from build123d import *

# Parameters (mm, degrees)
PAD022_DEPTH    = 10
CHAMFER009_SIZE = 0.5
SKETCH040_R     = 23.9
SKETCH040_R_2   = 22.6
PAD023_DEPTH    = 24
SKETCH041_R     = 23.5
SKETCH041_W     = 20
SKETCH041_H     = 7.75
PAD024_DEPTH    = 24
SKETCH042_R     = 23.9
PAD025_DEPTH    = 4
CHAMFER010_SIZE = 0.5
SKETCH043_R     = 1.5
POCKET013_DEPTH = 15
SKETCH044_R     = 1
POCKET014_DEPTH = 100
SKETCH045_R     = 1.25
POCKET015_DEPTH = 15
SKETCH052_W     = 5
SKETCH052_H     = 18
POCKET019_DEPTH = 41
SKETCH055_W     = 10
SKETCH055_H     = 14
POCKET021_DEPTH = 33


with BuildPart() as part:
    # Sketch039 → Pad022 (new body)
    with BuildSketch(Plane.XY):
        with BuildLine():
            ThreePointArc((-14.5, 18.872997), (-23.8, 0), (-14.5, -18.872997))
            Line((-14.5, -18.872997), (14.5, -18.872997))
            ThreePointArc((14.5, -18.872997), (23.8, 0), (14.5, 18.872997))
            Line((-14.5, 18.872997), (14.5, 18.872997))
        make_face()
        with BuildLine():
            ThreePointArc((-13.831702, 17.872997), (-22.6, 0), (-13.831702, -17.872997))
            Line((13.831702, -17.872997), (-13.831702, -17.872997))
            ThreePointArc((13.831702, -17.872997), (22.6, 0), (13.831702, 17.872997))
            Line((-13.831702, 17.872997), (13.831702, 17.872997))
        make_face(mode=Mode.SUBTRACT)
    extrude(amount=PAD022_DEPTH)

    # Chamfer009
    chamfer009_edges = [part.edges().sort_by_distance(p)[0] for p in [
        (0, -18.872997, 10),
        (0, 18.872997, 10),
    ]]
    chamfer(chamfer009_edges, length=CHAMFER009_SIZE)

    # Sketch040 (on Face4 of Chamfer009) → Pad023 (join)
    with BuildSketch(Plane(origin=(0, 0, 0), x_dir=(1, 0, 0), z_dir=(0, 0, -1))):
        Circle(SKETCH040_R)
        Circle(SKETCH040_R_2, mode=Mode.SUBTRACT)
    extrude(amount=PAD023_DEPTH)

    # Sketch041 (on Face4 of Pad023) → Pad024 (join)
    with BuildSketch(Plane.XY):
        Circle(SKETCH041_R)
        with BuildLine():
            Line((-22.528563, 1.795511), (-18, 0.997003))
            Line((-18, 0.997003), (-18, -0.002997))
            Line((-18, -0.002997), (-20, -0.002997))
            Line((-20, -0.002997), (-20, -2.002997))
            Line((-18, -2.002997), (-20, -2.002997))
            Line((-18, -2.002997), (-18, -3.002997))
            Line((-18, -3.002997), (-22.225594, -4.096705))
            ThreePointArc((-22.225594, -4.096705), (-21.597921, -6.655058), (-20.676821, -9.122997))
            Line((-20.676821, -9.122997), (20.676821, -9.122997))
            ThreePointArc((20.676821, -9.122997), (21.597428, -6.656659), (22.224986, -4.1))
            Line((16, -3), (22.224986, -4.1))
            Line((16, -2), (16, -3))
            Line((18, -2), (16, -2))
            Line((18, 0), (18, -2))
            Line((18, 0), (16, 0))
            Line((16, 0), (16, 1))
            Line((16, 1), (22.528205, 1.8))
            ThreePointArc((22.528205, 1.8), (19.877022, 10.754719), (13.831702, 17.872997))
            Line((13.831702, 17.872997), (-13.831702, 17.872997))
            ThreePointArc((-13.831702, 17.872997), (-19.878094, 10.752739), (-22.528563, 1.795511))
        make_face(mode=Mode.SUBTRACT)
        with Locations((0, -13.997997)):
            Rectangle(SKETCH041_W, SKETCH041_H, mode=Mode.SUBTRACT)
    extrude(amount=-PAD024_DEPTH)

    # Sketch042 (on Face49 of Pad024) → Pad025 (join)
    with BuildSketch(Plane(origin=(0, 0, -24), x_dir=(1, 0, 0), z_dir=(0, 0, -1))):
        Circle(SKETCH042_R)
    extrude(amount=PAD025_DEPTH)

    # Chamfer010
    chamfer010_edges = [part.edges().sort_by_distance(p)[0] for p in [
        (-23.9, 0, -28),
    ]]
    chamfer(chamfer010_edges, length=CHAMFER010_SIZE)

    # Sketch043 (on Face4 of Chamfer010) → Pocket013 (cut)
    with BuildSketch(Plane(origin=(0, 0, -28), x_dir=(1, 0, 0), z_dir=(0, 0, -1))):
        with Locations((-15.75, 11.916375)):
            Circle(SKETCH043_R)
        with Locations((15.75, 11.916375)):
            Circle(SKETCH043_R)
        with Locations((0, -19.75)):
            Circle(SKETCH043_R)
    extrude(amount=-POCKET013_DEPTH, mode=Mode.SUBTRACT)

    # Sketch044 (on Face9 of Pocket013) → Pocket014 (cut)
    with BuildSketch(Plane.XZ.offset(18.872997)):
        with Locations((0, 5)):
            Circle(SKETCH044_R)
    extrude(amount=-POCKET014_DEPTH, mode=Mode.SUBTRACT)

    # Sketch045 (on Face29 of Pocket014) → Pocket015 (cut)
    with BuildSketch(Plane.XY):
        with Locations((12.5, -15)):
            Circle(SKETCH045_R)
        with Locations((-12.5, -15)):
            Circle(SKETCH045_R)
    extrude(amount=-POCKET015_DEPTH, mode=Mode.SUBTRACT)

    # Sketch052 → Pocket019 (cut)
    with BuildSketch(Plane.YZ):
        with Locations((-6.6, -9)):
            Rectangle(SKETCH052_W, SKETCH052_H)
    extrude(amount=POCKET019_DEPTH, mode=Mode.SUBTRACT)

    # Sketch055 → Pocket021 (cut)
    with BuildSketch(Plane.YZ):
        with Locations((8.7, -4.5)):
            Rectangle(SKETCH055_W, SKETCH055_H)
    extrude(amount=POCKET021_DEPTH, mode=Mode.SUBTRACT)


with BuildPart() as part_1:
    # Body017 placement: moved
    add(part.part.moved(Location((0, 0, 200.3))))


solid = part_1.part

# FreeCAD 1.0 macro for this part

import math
import FreeCAD as App
import Part
import Sketcher

V = App.Vector
Q = App.Units.Quantity


def edges_at(feature, points):
    """Names of the edges that pass closest to the given points."""
    edges = feature.Shape.Edges
    near = lambda p: min(range(len(edges)), key=lambda i: edges[i].distToShape(Part.Vertex(*p))[0])
    return sorted({f"Edge{near(p) + 1}" for p in points})

doc = App.newDocument("Part")
params = doc.addObject("Spreadsheet::Sheet", "Params")
for row, (alias, value) in enumerate([
    ("sketch1_radius", "23.800001 mm"),
    ("sketch1_radius2", "22.6 mm"),
    ("sketch1_width", "29 mm"),
    ("pad1_length", "10 mm"),
    ("chamfer_size", "0.5 mm"),
    ("sketch2_diameter", "47.8 mm"),
    ("sketch2_diameter2", "45.2 mm"),
    ("pad2_length", "24 mm"),
    ("sketch3_diameter", "47 mm"),
    ("sketch3_width", "20 mm"),
    ("sketch3_width2", "2 mm"),
    ("sketch3_width3", "2 mm"),
    ("sketch3_width4", "2 mm"),
    ("pad3_length", "24 mm"),
    ("sketch4_diameter", "47.8 mm"),
    ("pad4_length", "4 mm"),
    ("chamfer2_size", "0.5 mm"),
    ("sketch5_diameter", "3 mm"),
    ("pocket1_length", "15 mm"),
    ("sketch6_diameter", "2 mm"),
    ("pocket2_length", "100 mm"),
    ("sketch7_diameter", "2.5 mm"),
    ("pocket3_length", "15 mm"),
    ("sketch8_width", "5 mm"),
    ("sketch8_height", "18 mm"),
    ("pocket4_length", "41 mm"),
    ("sketch9_width", "10 mm"),
    ("sketch9_height", "14 mm"),
    ("pocket5_length", "33 mm"),
], start=1):
    params.set(f"A{row}", alias)
    params.set(f"B{row}", "=" + value)
    params.setAlias(f"B{row}", alias)

body = doc.addObject("PartDesign::Body", "Body")

# Sketch on XY plane
sketch1 = body.newObject("Sketcher::SketchObject", "Sketch")
sketch1.AttachmentSupport = (doc.getObject("XY_Plane"), [""])
sketch1.MapMode = "FlatFace"
sketch1.addGeometry([
    Part.ArcOfCircle(Part.Circle(V(0, 0, 0), V(0, 0, 1), 24), math.radians(128), math.radians(232)),  # 0
    Part.LineSegment(V(-14, -19, 0), V(14, -19, 0)),  # 1
    Part.ArcOfCircle(Part.Circle(V(0, 0, 0), V(0, 0, 1), 24), math.radians(-52), math.radians(52)),  # 2
    Part.LineSegment(V(14, 19, 0), V(-14, 19, 0)),  # 3
    Part.ArcOfCircle(Part.Circle(V(0, 0, 0), V(0, 0, 1), 23), math.radians(128), math.radians(232)),  # 4
    Part.LineSegment(V(-14, 18, 0), V(14, 18, 0)),  # 5
    Part.ArcOfCircle(Part.Circle(V(0, 0, 0), V(0, 0, 1), 23), math.radians(-52), math.radians(52)),  # 6
    Part.LineSegment(V(14, -18, 0), V(-14, -18, 0)),  # 7
], False)
sketch1.addConstraint([
    Sketcher.Constraint("Coincident", 0, 2, 1, 1),
    Sketcher.Constraint("Coincident", 1, 2, 2, 1),
    Sketcher.Constraint("Coincident", 2, 2, 3, 1),
    Sketcher.Constraint("Coincident", 3, 2, 0, 1),
    Sketcher.Constraint("Coincident", 4, 1, 5, 1),
    Sketcher.Constraint("Coincident", 5, 2, 6, 2),
    Sketcher.Constraint("Coincident", 6, 1, 7, 1),
    Sketcher.Constraint("Coincident", 7, 2, 4, 2),
    Sketcher.Constraint("Horizontal", 1),
    Sketcher.Constraint("Horizontal", 3),
    Sketcher.Constraint("Horizontal", 5),
    Sketcher.Constraint("Horizontal", 7),
    Sketcher.Constraint("Coincident", 0, 3, -1, 1),
    Sketcher.Constraint("Coincident", 2, 3, -1, 1),
    Sketcher.Constraint("Coincident", 4, 3, -1, 1),
    Sketcher.Constraint("Coincident", 6, 3, -1, 1),
    Sketcher.Constraint("Equal", 0, 2),
    Sketcher.Constraint("Equal", 4, 6),
    Sketcher.Constraint("Vertical", 1, 2, 2, 2),
    Sketcher.Constraint("Vertical", 5, 2, 6, 1),
    Sketcher.Constraint("Radius", 0, Q("23.800001 mm")),
    Sketcher.Constraint("Radius", 4, Q("22.6 mm")),
    Sketcher.Constraint("DistanceX", 1, 1, 1, 2, Q("29 mm")),
    Sketcher.Constraint("DistanceY", 4, 1, 3, 2, Q("1 mm")),
])
sketch1.setExpression("Constraints[20]", "Params.sketch1_radius")
sketch1.setExpression("Constraints[21]", "Params.sketch1_radius2")
sketch1.setExpression("Constraints[22]", "Params.sketch1_width")
pad1 = body.newObject("PartDesign::Pad", "Pad")
pad1.Profile = sketch1
pad1.setExpression("Length", "Params.pad1_length")
doc.recompute()

chamfer = body.newObject("PartDesign::Chamfer", "Chamfer")
chamfer.Base = (pad1, edges_at(pad1, [(0, -18.873, 10), (0, 18.873, 10)]))
chamfer.setExpression("Size", "Params.chamfer_size")

# Sketch on XY plane
sketch2 = body.newObject("Sketcher::SketchObject", "Sketch001")
sketch2.AttachmentSupport = (doc.getObject("XY_Plane"), [""])
sketch2.MapMode = "FlatFace"
sketch2.addGeometry([
    Part.Circle(V(0, 0, 0), V(0, 0, 1), 24),
    Part.Circle(V(0, 0, 0), V(0, 0, 1), 23),
], False)
sketch2.addConstraint([
    Sketcher.Constraint("Coincident", 0, 3, -1, 1),
    Sketcher.Constraint("Coincident", 1, 3, -1, 1),
    Sketcher.Constraint("Diameter", 0, Q("47.8 mm")),
    Sketcher.Constraint("Diameter", 1, Q("45.2 mm")),
])
sketch2.setExpression("Constraints[2]", "Params.sketch2_diameter")
sketch2.setExpression("Constraints[3]", "Params.sketch2_diameter2")
pad2 = body.newObject("PartDesign::Pad", "Pad001")
pad2.Profile = sketch2
pad2.setExpression("Length", "Params.pad2_length")
pad2.Reversed = True

# Sketch on XY plane
sketch3 = body.newObject("Sketcher::SketchObject", "Sketch002")
sketch3.AttachmentSupport = (doc.getObject("XY_Plane"), [""])
sketch3.MapMode = "FlatFace"
sketch3.addGeometry([
    Part.Circle(V(0, 0, 0), V(0, 0, 1), 23.5),  # 0
    Part.LineSegment(V(10, -17.872997, 0), V(-10, -17.872997, 0)),  # 1
    Part.LineSegment(V(-10, -17.872997, 0), V(-10, -10.122997, 0)),  # 2
    Part.LineSegment(V(-10, -10.122997, 0), V(10, -10.122997, 0)),  # 3
    Part.LineSegment(V(10, -10.122997, 0), V(10, -17.872997, 0)),  # 4
    Part.LineSegment(V(-18, 0.997003, 0), V(-22.528563, 1.795511, 0)),  # 5
    Part.ArcOfCircle(Part.Circle(V(-0.000003, 0.000001, 0), V(0, 0, 1), 22.599998), math.radians(127.735863), math.radians(175.4432)),  # 6
    Part.LineSegment(V(-13.831702, 17.872997, 0), V(13.831702, 17.872997, 0)),  # 7
    Part.ArcOfCircle(Part.Circle(V(-0.000006, -0.000004, 0), V(0, 0, 1), 22.600007), math.radians(4.568227), math.radians(52.264128)),  # 8
    Part.LineSegment(V(22.528205, 1.8, 0), V(16, 1, 0)),  # 9
    Part.LineSegment(V(16, 1, 0), V(16, 0, 0)),  # 10
    Part.LineSegment(V(16, 0, 0), V(18, 0, 0)),  # 11
    Part.LineSegment(V(18, 0, 0), V(18, -2, 0)),  # 12
    Part.LineSegment(V(18, -2, 0), V(16, -2, 0)),  # 13
    Part.LineSegment(V(16, -2, 0), V(16, -3, 0)),  # 14
    Part.LineSegment(V(16, -3, 0), V(22.224986, -4.1, 0)),  # 15
    Part.ArcOfCircle(Part.Circle(V(0.000011, -0.000003, 0), V(0, 0, 1), 22.599989), math.radians(-23.807965), math.radians(-10.452242)),  # 16
    Part.LineSegment(V(20.676821, -9.122997, 0), V(-20.676821, -9.122997, 0)),  # 17
    Part.ArcOfCircle(Part.Circle(V(0.000069, 0.000023, 0), V(0, 0, 1), 22.600072), math.radians(-169.556224), math.radians(-156.192055)),  # 18
    Part.LineSegment(V(-22.225594, -4.096705, 0), V(-18, -3.002997, 0)),  # 19
    Part.LineSegment(V(-18, -3.002997, 0), V(-18, -2.002997, 0)),  # 20
    Part.LineSegment(V(-18, -2.002997, 0), V(-20, -2.002997, 0)),  # 21
    Part.LineSegment(V(-20, -2.002997, 0), V(-20, -0.002997, 0)),  # 22
    Part.LineSegment(V(-20, -0.002997, 0), V(-18, -0.002997, 0)),  # 23
    Part.LineSegment(V(-18, -0.002997, 0), V(-18, 0.997003, 0)),  # 24
], False)
sketch3.addConstraint([
    Sketcher.Constraint("Coincident", 1, 2, 2, 1),
    Sketcher.Constraint("Coincident", 2, 2, 3, 1),
    Sketcher.Constraint("Coincident", 3, 2, 4, 1),
    Sketcher.Constraint("Coincident", 4, 2, 1, 1),
    Sketcher.Constraint("Coincident", 5, 2, 6, 2),
    Sketcher.Constraint("Coincident", 6, 1, 7, 1),
    Sketcher.Constraint("Coincident", 7, 2, 8, 2),
    Sketcher.Constraint("Coincident", 8, 1, 9, 1),
    Sketcher.Constraint("Coincident", 9, 2, 10, 1),
    Sketcher.Constraint("Coincident", 10, 2, 11, 1),
    Sketcher.Constraint("Coincident", 11, 2, 12, 1),
    Sketcher.Constraint("Coincident", 12, 2, 13, 1),
    Sketcher.Constraint("Coincident", 13, 2, 14, 1),
    Sketcher.Constraint("Coincident", 14, 2, 15, 1),
    Sketcher.Constraint("Coincident", 15, 2, 16, 2),
    Sketcher.Constraint("Coincident", 16, 1, 17, 1),
    Sketcher.Constraint("Coincident", 17, 2, 18, 2),
    Sketcher.Constraint("Coincident", 18, 1, 19, 1),
    Sketcher.Constraint("Coincident", 19, 2, 20, 1),
    Sketcher.Constraint("Coincident", 20, 2, 21, 1),
    Sketcher.Constraint("Coincident", 21, 2, 22, 1),
    Sketcher.Constraint("Coincident", 22, 2, 23, 1),
    Sketcher.Constraint("Coincident", 23, 2, 24, 1),
    Sketcher.Constraint("Coincident", 24, 2, 5, 1),
    Sketcher.Constraint("Horizontal", 1),
    Sketcher.Constraint("Vertical", 2),
    Sketcher.Constraint("Horizontal", 3),
    Sketcher.Constraint("Vertical", 4),
    Sketcher.Constraint("Horizontal", 7),
    Sketcher.Constraint("Vertical", 10),
    Sketcher.Constraint("Horizontal", 11),
    Sketcher.Constraint("Vertical", 12),
    Sketcher.Constraint("Horizontal", 13),
    Sketcher.Constraint("Vertical", 14),
    Sketcher.Constraint("Horizontal", 17),
    Sketcher.Constraint("Vertical", 20),
    Sketcher.Constraint("Horizontal", 21),
    Sketcher.Constraint("Vertical", 22),
    Sketcher.Constraint("Horizontal", 23),
    Sketcher.Constraint("Vertical", 24),
    Sketcher.Constraint("Coincident", 0, 3, -1, 1),
    Sketcher.Constraint("Coincident", 6, 3, -1, 1),
    Sketcher.Constraint("Coincident", 8, 3, -1, 1),
    Sketcher.Constraint("PointOnObject", 10, 2, -1),
    Sketcher.Constraint("Diameter", 0, Q("47 mm")),
    Sketcher.Constraint("DistanceX", 1, 2, 1, 1, Q("20 mm")),
    Sketcher.Constraint("DistanceX", 11, 1, 11, 2, Q("2 mm")),
    Sketcher.Constraint("DistanceX", 13, 2, 13, 1, Q("2 mm")),
    Sketcher.Constraint("DistanceX", 21, 2, 21, 1, Q("2 mm")),
    Sketcher.Constraint("DistanceX", 23, 1, 23, 2, Q("2 mm")),
    Sketcher.Constraint("DistanceY", 10, 2, 10, 1, Q("1 mm")),
    Sketcher.Constraint("DistanceY", 12, 2, 12, 1, Q("2 mm")),
    Sketcher.Constraint("DistanceY", 14, 2, 14, 1, Q("1 mm")),
    Sketcher.Constraint("DistanceY", 20, 1, 20, 2, Q("1 mm")),
    Sketcher.Constraint("DistanceY", 22, 1, 22, 2, Q("2 mm")),
    Sketcher.Constraint("DistanceY", 24, 1, 24, 2, Q("1 mm")),
    Sketcher.Constraint("DistanceX", 1, 2, -1, 1, Q("10 mm")),
    Sketcher.Constraint("DistanceX", -1, 1, 9, 2, Q("16 mm")),
    Sketcher.Constraint("DistanceX", 19, 2, -1, 1, Q("18 mm")),
    Sketcher.Constraint("DistanceY", 2, 2, 17, 2, Q("1 mm")),
    Sketcher.Constraint("DistanceY", 2, 1, 2, 2, Q("7.75 mm")),
    Sketcher.Constraint("DistanceY", -1, 1, 8, 1, Q("1.8 mm")),
    Sketcher.Constraint("DistanceY", 15, 2, -1, 1, Q("4.1 mm")),
    Sketcher.Constraint("Radius", 16, Q("22.599989 mm")),
    Sketcher.Constraint("DistanceY", 17, 2, 19, 2, Q("6.12 mm")),
    Sketcher.Constraint("Radius", 6, Q("22.599998 mm")),
    Sketcher.Constraint("Radius", 8, Q("22.600007 mm")),
    Sketcher.Constraint("Radius", 18, Q("22.600072 mm")),
    Sketcher.Constraint("DistanceY", 1, 2, 6, 3, Q("17.872998 mm")),
    Sketcher.Constraint("DistanceY", 8, 3, 6, 1, Q("17.873001 mm")),
    Sketcher.Constraint("DistanceY", 16, 3, 6, 1, Q("17.873 mm")),
    Sketcher.Constraint("DistanceY", 18, 1, 8, 3, Q("4.096701 mm")),
    Sketcher.Constraint("Distance", 19, Q("4.364842 mm")),
    Sketcher.Constraint("DistanceX", 17, 2, 17, 1, Q("41.353642 mm")),
    Sketcher.Constraint("DistanceY", -1, 1, 5, 2, Q("1.795511 mm")),
    Sketcher.Constraint("DistanceX", -1, 1, 16, 1, Q("20.676821 mm")),
])
sketch3.setExpression("Constraints[44]", "Params.sketch3_diameter")
sketch3.setExpression("Constraints[45]", "Params.sketch3_width")
sketch3.setExpression("Constraints[46]", "Params.sketch3_width2")
sketch3.setExpression("Constraints[47]", "Params.sketch3_width3")
sketch3.setExpression("Constraints[48]", "Params.sketch3_width4")
pad3 = body.newObject("PartDesign::Pad", "Pad002")
pad3.Profile = sketch3
pad3.setExpression("Length", "Params.pad3_length")
pad3.Reversed = True

# Sketch on XY plane
sketch4 = body.newObject("Sketcher::SketchObject", "Sketch003")
sketch4.AttachmentSupport = (doc.getObject("XY_Plane"), [""])
sketch4.MapMode = "FlatFace"
sketch4.AttachmentOffset = App.Placement(V(0, 0, -24), App.Rotation())
sketch4.addGeometry(Part.Circle(V(0, 0, 0), V(0, 0, 1), 24), False)
sketch4.addConstraint([
    Sketcher.Constraint("Coincident", 0, 3, -1, 1),
    Sketcher.Constraint("Diameter", 0, Q("47.8 mm")),
])
sketch4.setExpression("Constraints[1]", "Params.sketch4_diameter")
pad4 = body.newObject("PartDesign::Pad", "Pad003")
pad4.Profile = sketch4
pad4.setExpression("Length", "Params.pad4_length")
pad4.Reversed = True
doc.recompute()

chamfer2 = body.newObject("PartDesign::Chamfer", "Chamfer001")
chamfer2.Base = (pad4, edges_at(pad4, [(-23.9, 0, -28)]))
chamfer2.setExpression("Size", "Params.chamfer2_size")

# Sketch on XY plane
sketch5 = body.newObject("Sketcher::SketchObject", "Sketch004")
sketch5.AttachmentSupport = (doc.getObject("XY_Plane"), [""])
sketch5.MapMode = "FlatFace"
sketch5.AttachmentOffset = App.Placement(V(0, 0, -28), App.Rotation())
sketch5.addGeometry([
    Part.Circle(V(-15.8, -11.9, 0), V(0, 0, 1), 1.5),
    Part.Circle(V(15.8, -11.9, 0), V(0, 0, 1), 1.5),
    Part.Circle(V(0, 19.8, 0), V(0, 0, 1), 1.5),
], False)
sketch5.addConstraint([
    Sketcher.Constraint("Equal", 0, 1),
    Sketcher.Constraint("Equal", 1, 2),
    Sketcher.Constraint("Symmetric", 0, 3, 1, 3, -2),
    Sketcher.Constraint("PointOnObject", 2, 3, -2),
    Sketcher.Constraint("Diameter", 0, Q("3 mm")),
    Sketcher.Constraint("DistanceX", 0, 3, 1, 3, Q("31.5 mm")),
    Sketcher.Constraint("DistanceY", -1, 1, 2, 3, Q("19.75 mm")),
    Sketcher.Constraint("DistanceY", 0, 3, -1, 1, Q("11.916375 mm")),
])
sketch5.setExpression("Constraints[4]", "Params.sketch5_diameter")
pocket1 = body.newObject("PartDesign::Pocket", "Pocket")
pocket1.Profile = sketch5
pocket1.setExpression("Length", "Params.pocket1_length")
pocket1.Reversed = True

# Sketch on XZ plane
sketch6 = body.newObject("Sketcher::SketchObject", "Sketch005")
sketch6.AttachmentSupport = (doc.getObject("XZ_Plane"), [""])
sketch6.MapMode = "FlatFace"
sketch6.AttachmentOffset = App.Placement(V(0, 0, 18.872997), App.Rotation())
sketch6.addGeometry(Part.Circle(V(0, 5, 0), V(0, 0, 1), 1), False)
sketch6.addConstraint([
    Sketcher.Constraint("PointOnObject", 0, 3, -2),
    Sketcher.Constraint("Diameter", 0, Q("2 mm")),
    Sketcher.Constraint("DistanceY", -1, 1, 0, 3, Q("5 mm")),
])
sketch6.setExpression("Constraints[1]", "Params.sketch6_diameter")
pocket2 = body.newObject("PartDesign::Pocket", "Pocket001")
pocket2.Profile = sketch6
pocket2.setExpression("Length", "Params.pocket2_length")

# Sketch on XY plane
sketch7 = body.newObject("Sketcher::SketchObject", "Sketch006")
sketch7.AttachmentSupport = (doc.getObject("XY_Plane"), [""])
sketch7.MapMode = "FlatFace"
sketch7.addGeometry([
    Part.Circle(V(12.5, -15, 0), V(0, 0, 1), 1.2),
    Part.Circle(V(-12.5, -15, 0), V(0, 0, 1), 1.2),
], False)
sketch7.addConstraint([
    Sketcher.Constraint("Equal", 0, 1),
    Sketcher.Constraint("Symmetric", 0, 3, 1, 3, -2),
    Sketcher.Constraint("Diameter", 0, Q("2.5 mm")),
    Sketcher.Constraint("DistanceY", 0, 3, -1, 1, Q("15 mm")),
    Sketcher.Constraint("DistanceX", 1, 3, 0, 3, Q("25 mm")),
])
sketch7.setExpression("Constraints[2]", "Params.sketch7_diameter")
pocket3 = body.newObject("PartDesign::Pocket", "Pocket002")
pocket3.Profile = sketch7
pocket3.setExpression("Length", "Params.pocket3_length")

# Sketch on YZ plane
sketch8 = body.newObject("Sketcher::SketchObject", "Sketch007")
sketch8.AttachmentSupport = (doc.getObject("YZ_Plane"), [""])
sketch8.MapMode = "FlatFace"
sketch8.addGeometry([
    Part.LineSegment(V(-9, 0, 0), V(-9, -18, 0)),
    Part.LineSegment(V(-9, -18, 0), V(-4, -18, 0)),
    Part.LineSegment(V(-4, -18, 0), V(-4, 0, 0)),
    Part.LineSegment(V(-4, 0, 0), V(-9, 0, 0)),
], False)
sketch8.addConstraint([
    Sketcher.Constraint("Coincident", 0, 2, 1, 1),
    Sketcher.Constraint("Coincident", 1, 2, 2, 1),
    Sketcher.Constraint("Coincident", 2, 2, 3, 1),
    Sketcher.Constraint("Coincident", 3, 2, 0, 1),
    Sketcher.Constraint("Vertical", 0),
    Sketcher.Constraint("Horizontal", 1),
    Sketcher.Constraint("Vertical", 2),
    Sketcher.Constraint("Horizontal", 3),
    Sketcher.Constraint("PointOnObject", 2, 2, -1),
    Sketcher.Constraint("DistanceX", 1, 1, 1, 2, Q("5 mm")),
    Sketcher.Constraint("DistanceY", 0, 2, 0, 1, Q("18 mm")),
    Sketcher.Constraint("DistanceX", 0, 2, -1, 1, Q("9.1 mm")),
])
sketch8.setExpression("Constraints[9]", "Params.sketch8_width")
sketch8.setExpression("Constraints[10]", "Params.sketch8_height")
pocket4 = body.newObject("PartDesign::Pocket", "Pocket003")
pocket4.Profile = sketch8
pocket4.setExpression("Length", "Params.pocket4_length")
pocket4.Reversed = True

# Sketch on YZ plane
sketch9 = body.newObject("Sketcher::SketchObject", "Sketch008")
sketch9.AttachmentSupport = (doc.getObject("YZ_Plane"), [""])
sketch9.MapMode = "FlatFace"
sketch9.addGeometry([
    Part.LineSegment(V(4, 2, 0), V(4, -12, 0)),
    Part.LineSegment(V(4, -12, 0), V(14, -12, 0)),
    Part.LineSegment(V(14, -12, 0), V(14, 2, 0)),
    Part.LineSegment(V(14, 2, 0), V(4, 2, 0)),
], False)
sketch9.addConstraint([
    Sketcher.Constraint("Coincident", 0, 2, 1, 1),
    Sketcher.Constraint("Coincident", 1, 2, 2, 1),
    Sketcher.Constraint("Coincident", 2, 2, 3, 1),
    Sketcher.Constraint("Coincident", 3, 2, 0, 1),
    Sketcher.Constraint("Vertical", 0),
    Sketcher.Constraint("Horizontal", 1),
    Sketcher.Constraint("Vertical", 2),
    Sketcher.Constraint("Horizontal", 3),
    Sketcher.Constraint("DistanceX", 1, 1, 1, 2, Q("10 mm")),
    Sketcher.Constraint("DistanceY", 0, 2, 0, 1, Q("14 mm")),
    Sketcher.Constraint("DistanceX", -1, 1, 0, 2, Q("3.7 mm")),
    Sketcher.Constraint("DistanceY", 0, 2, -1, 1, Q("11.5 mm")),
])
sketch9.setExpression("Constraints[8]", "Params.sketch9_width")
sketch9.setExpression("Constraints[9]", "Params.sketch9_height")
pocket5 = body.newObject("PartDesign::Pocket", "Pocket004")
pocket5.Profile = sketch9
pocket5.setExpression("Length", "Params.pocket5_length")
pocket5.Reversed = True
body2 = doc.addObject("PartDesign::Body", "Body001")
doc.recompute()

body.Placement = App.Placement(V(0, 0, 200.3), App.Rotation(V(0, 0, 1), 0))
boolean = body2.newObject("PartDesign::Boolean", "Boolean")
boolean.Type = "Fuse"
boolean.addObjects([body])

doc.recompute()
